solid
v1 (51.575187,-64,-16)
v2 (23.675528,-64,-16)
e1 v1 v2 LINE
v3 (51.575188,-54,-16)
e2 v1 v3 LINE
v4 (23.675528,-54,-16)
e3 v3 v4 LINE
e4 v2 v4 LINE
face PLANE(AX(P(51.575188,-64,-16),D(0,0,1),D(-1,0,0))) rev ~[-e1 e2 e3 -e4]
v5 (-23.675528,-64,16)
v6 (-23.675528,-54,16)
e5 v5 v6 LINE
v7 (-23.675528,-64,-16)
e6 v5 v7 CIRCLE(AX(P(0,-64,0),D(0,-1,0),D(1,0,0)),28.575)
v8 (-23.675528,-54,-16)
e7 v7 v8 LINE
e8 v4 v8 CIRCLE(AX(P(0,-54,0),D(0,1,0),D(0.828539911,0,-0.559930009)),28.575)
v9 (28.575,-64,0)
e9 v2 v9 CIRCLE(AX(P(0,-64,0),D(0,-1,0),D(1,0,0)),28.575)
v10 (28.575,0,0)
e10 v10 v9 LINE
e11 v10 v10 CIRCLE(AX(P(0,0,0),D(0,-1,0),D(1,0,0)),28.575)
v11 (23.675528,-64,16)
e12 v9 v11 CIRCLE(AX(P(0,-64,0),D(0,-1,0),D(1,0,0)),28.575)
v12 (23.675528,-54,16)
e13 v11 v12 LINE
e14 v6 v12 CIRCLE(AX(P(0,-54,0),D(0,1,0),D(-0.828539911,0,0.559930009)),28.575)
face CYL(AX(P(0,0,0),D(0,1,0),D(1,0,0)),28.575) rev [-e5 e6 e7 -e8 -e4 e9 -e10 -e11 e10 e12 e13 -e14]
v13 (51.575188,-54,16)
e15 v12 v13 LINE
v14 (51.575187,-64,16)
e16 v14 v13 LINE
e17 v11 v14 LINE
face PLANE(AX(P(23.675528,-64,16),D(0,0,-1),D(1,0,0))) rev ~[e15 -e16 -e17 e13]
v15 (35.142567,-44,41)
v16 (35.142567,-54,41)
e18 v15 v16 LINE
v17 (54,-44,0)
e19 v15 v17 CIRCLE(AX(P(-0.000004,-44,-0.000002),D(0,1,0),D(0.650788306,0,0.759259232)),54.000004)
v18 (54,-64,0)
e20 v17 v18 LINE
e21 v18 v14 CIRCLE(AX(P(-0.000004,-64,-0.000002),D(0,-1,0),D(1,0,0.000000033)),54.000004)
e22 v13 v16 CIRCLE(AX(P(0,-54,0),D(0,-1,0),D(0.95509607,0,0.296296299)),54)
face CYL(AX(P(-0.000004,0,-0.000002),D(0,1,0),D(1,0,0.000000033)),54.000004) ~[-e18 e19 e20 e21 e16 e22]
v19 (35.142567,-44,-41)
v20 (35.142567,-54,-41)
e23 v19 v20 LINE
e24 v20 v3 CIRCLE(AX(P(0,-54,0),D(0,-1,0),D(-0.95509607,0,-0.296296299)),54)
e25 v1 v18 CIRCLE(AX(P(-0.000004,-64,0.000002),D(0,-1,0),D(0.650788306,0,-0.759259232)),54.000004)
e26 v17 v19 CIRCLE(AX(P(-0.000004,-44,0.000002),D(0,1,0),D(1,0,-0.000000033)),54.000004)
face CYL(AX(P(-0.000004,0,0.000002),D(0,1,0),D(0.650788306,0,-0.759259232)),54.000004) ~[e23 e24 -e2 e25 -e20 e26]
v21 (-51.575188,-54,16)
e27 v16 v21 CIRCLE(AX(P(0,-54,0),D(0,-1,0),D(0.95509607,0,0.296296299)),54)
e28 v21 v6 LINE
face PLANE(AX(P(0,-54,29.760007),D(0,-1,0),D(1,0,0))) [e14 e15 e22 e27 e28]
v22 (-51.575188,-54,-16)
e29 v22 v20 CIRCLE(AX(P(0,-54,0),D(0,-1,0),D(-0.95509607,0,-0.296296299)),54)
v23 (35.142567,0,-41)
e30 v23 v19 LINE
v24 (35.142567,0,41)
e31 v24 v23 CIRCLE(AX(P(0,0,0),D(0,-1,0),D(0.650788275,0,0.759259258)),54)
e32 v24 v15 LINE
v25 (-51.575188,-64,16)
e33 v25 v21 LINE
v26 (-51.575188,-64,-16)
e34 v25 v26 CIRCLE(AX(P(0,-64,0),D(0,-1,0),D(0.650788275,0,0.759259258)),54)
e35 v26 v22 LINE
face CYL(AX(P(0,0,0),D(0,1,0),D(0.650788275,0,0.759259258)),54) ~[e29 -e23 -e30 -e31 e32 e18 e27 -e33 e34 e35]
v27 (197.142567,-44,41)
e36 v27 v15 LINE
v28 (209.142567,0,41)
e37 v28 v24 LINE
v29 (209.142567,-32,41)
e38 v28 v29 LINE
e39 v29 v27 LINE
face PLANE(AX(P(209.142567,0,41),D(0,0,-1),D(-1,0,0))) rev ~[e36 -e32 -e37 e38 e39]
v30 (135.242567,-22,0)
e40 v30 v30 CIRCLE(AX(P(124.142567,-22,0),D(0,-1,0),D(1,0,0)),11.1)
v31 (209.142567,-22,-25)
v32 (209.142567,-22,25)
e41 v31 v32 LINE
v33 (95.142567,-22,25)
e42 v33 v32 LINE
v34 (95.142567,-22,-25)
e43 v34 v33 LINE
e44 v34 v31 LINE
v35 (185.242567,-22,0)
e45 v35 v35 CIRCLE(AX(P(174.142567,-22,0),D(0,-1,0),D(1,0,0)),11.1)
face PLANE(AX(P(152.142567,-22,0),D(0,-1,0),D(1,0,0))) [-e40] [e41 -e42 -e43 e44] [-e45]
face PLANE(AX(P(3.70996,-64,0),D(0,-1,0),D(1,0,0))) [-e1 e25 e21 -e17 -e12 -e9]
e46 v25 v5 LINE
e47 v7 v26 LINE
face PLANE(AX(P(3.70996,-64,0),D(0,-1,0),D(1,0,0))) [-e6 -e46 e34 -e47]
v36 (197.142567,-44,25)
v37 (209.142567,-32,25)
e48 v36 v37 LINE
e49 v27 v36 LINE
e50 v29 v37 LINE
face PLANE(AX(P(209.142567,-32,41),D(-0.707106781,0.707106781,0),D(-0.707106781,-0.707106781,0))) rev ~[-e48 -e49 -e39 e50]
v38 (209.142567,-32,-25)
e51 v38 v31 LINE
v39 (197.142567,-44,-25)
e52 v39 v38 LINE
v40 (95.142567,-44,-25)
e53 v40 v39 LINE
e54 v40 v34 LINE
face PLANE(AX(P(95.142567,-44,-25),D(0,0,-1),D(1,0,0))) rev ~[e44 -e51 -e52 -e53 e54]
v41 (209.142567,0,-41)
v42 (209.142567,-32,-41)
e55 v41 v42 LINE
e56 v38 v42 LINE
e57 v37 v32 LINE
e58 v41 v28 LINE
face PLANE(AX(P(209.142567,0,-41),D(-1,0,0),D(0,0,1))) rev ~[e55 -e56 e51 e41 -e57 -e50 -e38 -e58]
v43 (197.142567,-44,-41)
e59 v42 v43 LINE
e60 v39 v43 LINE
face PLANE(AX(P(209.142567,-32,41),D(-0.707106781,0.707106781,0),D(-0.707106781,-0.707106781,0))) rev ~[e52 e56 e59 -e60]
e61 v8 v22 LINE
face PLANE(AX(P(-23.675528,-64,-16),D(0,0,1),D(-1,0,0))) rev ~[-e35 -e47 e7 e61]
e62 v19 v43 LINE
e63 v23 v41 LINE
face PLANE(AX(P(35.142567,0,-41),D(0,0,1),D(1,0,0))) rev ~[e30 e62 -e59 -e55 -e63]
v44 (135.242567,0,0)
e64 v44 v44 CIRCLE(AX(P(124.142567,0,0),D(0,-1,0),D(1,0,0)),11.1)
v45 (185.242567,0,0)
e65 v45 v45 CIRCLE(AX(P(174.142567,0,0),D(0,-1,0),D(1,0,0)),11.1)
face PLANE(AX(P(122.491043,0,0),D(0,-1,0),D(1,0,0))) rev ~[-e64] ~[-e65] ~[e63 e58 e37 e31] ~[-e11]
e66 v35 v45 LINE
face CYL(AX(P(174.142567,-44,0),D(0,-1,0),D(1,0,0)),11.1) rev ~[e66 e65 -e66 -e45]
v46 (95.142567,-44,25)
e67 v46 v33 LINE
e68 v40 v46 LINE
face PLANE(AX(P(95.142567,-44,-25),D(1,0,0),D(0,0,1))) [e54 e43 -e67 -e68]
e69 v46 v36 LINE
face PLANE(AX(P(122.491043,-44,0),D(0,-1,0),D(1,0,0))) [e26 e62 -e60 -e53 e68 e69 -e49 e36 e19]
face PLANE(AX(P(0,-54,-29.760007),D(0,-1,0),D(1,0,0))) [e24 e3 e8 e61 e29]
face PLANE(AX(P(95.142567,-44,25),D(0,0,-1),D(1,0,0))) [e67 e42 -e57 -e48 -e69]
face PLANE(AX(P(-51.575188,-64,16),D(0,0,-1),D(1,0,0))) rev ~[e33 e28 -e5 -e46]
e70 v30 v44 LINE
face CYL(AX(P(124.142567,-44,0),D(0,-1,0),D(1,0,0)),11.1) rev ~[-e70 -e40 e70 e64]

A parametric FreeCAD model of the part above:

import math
import FreeCAD as App
import Part
import Sketcher
from FreeCAD import Vector


def add_polygon(sketch, points):
    """Adds a closed chain of lines whose ends are joined by coincident constraints."""
    first, n = sketch.GeometryCount, len(points)
    for a, b in zip(points, points[1:] + points[:1]):
        sketch.addGeometry(Part.LineSegment(App.Vector(*a, 0), App.Vector(*b, 0)), False)
    for i in range(n):
        sketch.addConstraint(Sketcher.Constraint("Coincident", first + i, 2, first + (i + 1) % n, 1))

doc = App.newDocument("Part")
body = doc.addObject("PartDesign::Body", "Body")

# Sketch on XZ plane
sketch1 = body.newObject("Sketcher::SketchObject", "Sketch")
sketch1.AttachmentSupport = (doc.getObject("XZ_Plane"), [""])
sketch1.MapMode = "FlatFace"
sketch1.addGeometry([
    Part.ArcOfCircle(Part.Circle(Vector(-0.000004, 0.000002, 0), Vector(0, 0, 1), 54.000004), math.radians(-49.398937), math.radians(-0.000002)),
    Part.ArcOfCircle(Part.Circle(Vector(-0.000004, -0.000002, 0), Vector(0, 0, 1), 54.000004), math.radians(0.000002), math.radians(49.398937)),
    Part.ArcOfCircle(Part.Circle(Vector(0, 0, 0), Vector(0, 0, 1), 54), math.radians(49.398939), math.radians(310.601061)),
    Part.Circle(Vector(0, 0, 0), Vector(0, 0, 1), 28.575),
], False)
sketch1.addConstraint([
    Sketcher.Constraint("Tangent", 0, 2, 1, 1),
    Sketcher.Constraint("Tangent", 1, 2, 2, 1),
    Sketcher.Constraint("Tangent", 2, 2, 0, 1),
    Sketcher.Constraint("Coincident", 0, 3, -1, 1),
    Sketcher.Constraint("Coincident", 3, 3, -1, 1),
    Sketcher.Constraint("PointOnObject", 0, 2, -1),
    Sketcher.Constraint("Vertical", 1, 2, 2, 2),
    Sketcher.Constraint("Radius", 2, 54.0),
    Sketcher.Constraint("Diameter", 3, 57.15),
    Sketcher.Constraint("DistanceY", -1, 1, 1, 2, 41.0),
])
pad1 = body.newObject("PartDesign::Pad", "Pad")
pad1.Profile = sketch1
pad1.Length = 64

# Sketch on XZ plane
sketch2 = body.newObject("Sketcher::SketchObject", "Sketch001")
sketch2.AttachmentSupport = (doc.getObject("XZ_Plane"), [""])
sketch2.MapMode = "FlatFace"
sketch2.addGeometry([
    Part.ArcOfCircle(Part.Circle(Vector(-0.000004, -0.000002, 0), Vector(0, 0, 1), 54.000004), math.radians(0.000002), math.radians(49.398937)),  # 0
    Part.ArcOfCircle(Part.Circle(Vector(-0.000004, 0.000002, 0), Vector(0, 0, 1), 54.000004), math.radians(-49.398937), math.radians(-0.000002)),  # 1
    Part.LineSegment(Vector(35.142567, -41, 0), Vector(209.142567, -41, 0)),  # 2
    Part.LineSegment(Vector(209.142567, -41, 0), Vector(209.142567, 41, 0)),  # 3
    Part.LineSegment(Vector(209.142567, 41, 0), Vector(35.142567, 41, 0)),  # 4
], False)
sketch2.addConstraint([
    Sketcher.Constraint("Tangent", 0, 1, 1, 2),
    Sketcher.Constraint("Coincident", 1, 1, 2, 1),
    Sketcher.Constraint("Coincident", 2, 2, 3, 1),
    Sketcher.Constraint("Coincident", 3, 2, 4, 1),
    Sketcher.Constraint("Coincident", 4, 2, 0, 2),
    Sketcher.Constraint("Horizontal", 2),
    Sketcher.Constraint("Vertical", 3),
    Sketcher.Constraint("Horizontal", 4),
    Sketcher.Constraint("Coincident", 0, 3, -1, 1),
    Sketcher.Constraint("Equal", 0, 1),
    Sketcher.Constraint("PointOnObject", 0, 1, -1),
    Sketcher.Constraint("Vertical", 1, 1, 4, 2),
    Sketcher.Constraint("DistanceX", 2, 1, 2, 2, 174.0),
    Sketcher.Constraint("DistanceY", 3, 1, 3, 2, 82.0),
    Sketcher.Constraint("DistanceX", -1, 1, 0, 1, 54.0),
])
pad2 = body.newObject("PartDesign::Pad", "Pad001")
pad2.Profile = sketch2
pad2.Length = 44

# Sketch on XZ plane
sketch3 = body.newObject("Sketcher::SketchObject", "Sketch002")
sketch3.AttachmentSupport = (doc.getObject("XZ_Plane"), [""])
sketch3.MapMode = "FlatFace"
sketch3.AttachmentOffset = App.Placement(Vector(0, 0, 44), App.Rotation())
sketch3.addGeometry([
    Part.Circle(Vector(174.142567, 0, 0), Vector(0, 0, 1), 11.1),
    Part.Circle(Vector(124.142567, 0, 0), Vector(0, 0, 1), 11.1),
], False)
sketch3.addConstraint([
    Sketcher.Constraint("Equal", 0, 1),
    Sketcher.Constraint("PointOnObject", 0, 3, -1),
    Sketcher.Constraint("PointOnObject", 1, 3, -1),
    Sketcher.Constraint("Diameter", 0, 22.2),
    Sketcher.Constraint("DistanceX", 1, 3, 0, 3, 50.0),
    Sketcher.Constraint("DistanceX", -1, 1, 0, 3, 174.142567),
])
pocket1 = body.newObject("PartDesign::Pocket", "Pocket")
pocket1.Profile = sketch3
pocket1.Type = "ThroughAll"

# Sketch on XZ plane
sketch4 = body.newObject("Sketcher::SketchObject", "Sketch003")
sketch4.AttachmentSupport = (doc.getObject("XZ_Plane"), [""])
sketch4.MapMode = "FlatFace"
sketch4.AttachmentOffset = App.Placement(Vector(0, 0, 44), App.Rotation())
add_polygon(sketch4, [(95.142567, 25), (95.142567, -25), (209.142567, -25), (209.142567, 25)])  # lines 0-3
sketch4.addGeometry(Part.Circle(Vector(124.142567, 0, 0), Vector(0, 0, 1), 11.1), False)  # 4
sketch4.addGeometry(Part.Circle(Vector(174.142567, 0, 0), Vector(0, 0, 1), 11.1), False)  # 5
sketch4.addConstraint([
    Sketcher.Constraint("Vertical", 0),
    Sketcher.Constraint("Horizontal", 1),
    Sketcher.Constraint("Vertical", 2),
    Sketcher.Constraint("Horizontal", 3),
    Sketcher.Constraint("Equal", 4, 5),
    Sketcher.Constraint("PointOnObject", 4, 3, -1),
    Sketcher.Constraint("PointOnObject", 5, 3, -1),
    Sketcher.Constraint("Diameter", 4, 22.2),
    Sketcher.Constraint("DistanceX", 1, 1, 1, 2, 114.0),
    Sketcher.Constraint("DistanceY", 0, 2, 0, 1, 50.0),
    Sketcher.Constraint("DistanceY", 0, 2, -1, 1, 25.0),
    Sketcher.Constraint("DistanceX", 4, 3, 5, 3, 50.0),
    Sketcher.Constraint("DistanceX", 0, 2, 4, 3, 29.0),
    Sketcher.Constraint("DistanceX", -1, 1, 4, 3, 124.142567),
])
pocket2 = body.newObject("PartDesign::Pocket", "Pocket001")
pocket2.Profile = sketch4
pocket2.Length = 22

# Sketch on XZ plane
sketch5 = body.newObject("Sketcher::SketchObject", "Sketch004")
sketch5.AttachmentSupport = (doc.getObject("XZ_Plane"), [""])
sketch5.MapMode = "FlatFace"
sketch5.AttachmentOffset = App.Placement(Vector(0, 0, 64), App.Rotation())
sketch5.addGeometry([
    Part.ArcOfCircle(Part.Circle(Vector(0, 0, 0), Vector(0, 0, 1), 54), math.radians(17.235285), math.radians(162.764715)),  # 0
    Part.LineSegment(Vector(-51.575188, 16, 0), Vector(-23.675528, 16, 0)),  # 1
    Part.ArcOfCircle(Part.Circle(Vector(0, 0, 0), Vector(0, 0, 1), 28.575), math.radians(34.050958), math.radians(145.949042)),  # 2
    Part.LineSegment(Vector(23.675528, 16, 0), Vector(51.575188, 16, 0)),  # 3
    Part.LineSegment(Vector(-23.675528, -16, 0), Vector(-51.575188, -16, 0)),  # 4
    Part.ArcOfCircle(Part.Circle(Vector(0, 0, 0), Vector(0, 0, 1), 54), math.radians(-162.764715), math.radians(-17.235285)),  # 5
    Part.LineSegment(Vector(51.575188, -16, 0), Vector(23.675528, -16, 0)),  # 6
    Part.ArcOfCircle(Part.Circle(Vector(0, 0, 0), Vector(0, 0, 1), 28.575), math.radians(-145.949042), math.radians(-34.050958)),  # 7
], False)
sketch5.addConstraint([
    Sketcher.Constraint("Coincident", 0, 2, 1, 1),
    Sketcher.Constraint("Coincident", 1, 2, 2, 2),
    Sketcher.Constraint("Coincident", 2, 1, 3, 1),
    Sketcher.Constraint("Coincident", 3, 2, 0, 1),
    Sketcher.Constraint("Coincident", 4, 2, 5, 1),
    Sketcher.Constraint("Coincident", 5, 2, 6, 1),
    Sketcher.Constraint("Coincident", 6, 2, 7, 2),
    Sketcher.Constraint("Coincident", 7, 1, 4, 1),
    Sketcher.Constraint("Horizontal", 1),
    Sketcher.Constraint("Horizontal", 3),
    Sketcher.Constraint("Horizontal", 4),
    Sketcher.Constraint("Horizontal", 6),
    Sketcher.Constraint("Coincident", 0, 3, -1, 1),
    Sketcher.Constraint("Coincident", 2, 3, -1, 1),
    Sketcher.Constraint("Coincident", 5, 3, -1, 1),
    Sketcher.Constraint("Coincident", 7, 3, -1, 1),
    Sketcher.Constraint("Equal", 0, 5),
    Sketcher.Constraint("Equal", 2, 7),
    Sketcher.Constraint("Horizontal", 1, 2, 2, 1),
    Sketcher.Constraint("Horizontal", 4, 2, 5, 2),
    Sketcher.Constraint("Vertical", 0, 2, 4, 2),
    Sketcher.Constraint("Radius", 0, 54.0),
    Sketcher.Constraint("DistanceY", -1, 1, 0, 2, 16.0),
    Sketcher.Constraint("Radius", 2, 28.575),
])
pocket3 = body.newObject("PartDesign::Pocket", "Pocket002")
pocket3.Profile = sketch5
pocket3.Length = 10

# Sketch on XY plane
sketch6 = body.newObject("Sketcher::SketchObject", "Sketch005")
sketch6.AttachmentSupport = (doc.getObject("XY_Plane"), [""])
sketch6.MapMode = "FlatFace"
sketch6.AttachmentOffset = App.Placement(Vector(0, 0, 41), App.Rotation())
add_polygon(sketch6, [(197.142567, -44), (209.142567, -44), (209.142567, -32)])  # lines 0-2
sketch6.addConstraint([
    Sketcher.Constraint("Horizontal", 0),
    Sketcher.Constraint("Vertical", 1),
    Sketcher.Constraint("Equal", 0, 1),
    Sketcher.Constraint("DistanceX", 0, 1, 0, 2, 12.0),
    Sketcher.Constraint("DistanceY", 0, 2, -1, 1, 44.0),
    Sketcher.Constraint("DistanceX", -1, 1, 0, 2, 209.142567),
])
pocket4 = body.newObject("PartDesign::Pocket", "Pocket003")
pocket4.Profile = sketch6
pocket4.Type = "ThroughAll"

doc.recompute()
